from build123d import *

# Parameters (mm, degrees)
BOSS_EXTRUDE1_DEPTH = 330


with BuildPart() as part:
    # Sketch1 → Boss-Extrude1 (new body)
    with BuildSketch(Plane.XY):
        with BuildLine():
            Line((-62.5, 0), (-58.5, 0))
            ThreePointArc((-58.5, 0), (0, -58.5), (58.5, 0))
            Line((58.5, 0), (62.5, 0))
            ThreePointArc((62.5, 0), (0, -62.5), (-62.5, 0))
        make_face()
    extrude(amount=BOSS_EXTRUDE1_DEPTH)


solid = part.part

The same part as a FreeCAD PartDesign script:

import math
import FreeCAD as App
import Part
import Sketcher
from FreeCAD import Vector

doc = App.newDocument("Part")
body = doc.addObject("PartDesign::Body", "Body")

# Sketch on XY plane
sketch1 = body.newObject("Sketcher::SketchObject", "Sketch")
sketch1.AttachmentSupport = (doc.getObject("XY_Plane"), [""])
sketch1.MapMode = "FlatFace"
sketch1.addGeometry([
    Part.LineSegment(Vector(-58.5, 0, 0), Vector(-62.5, 0, 0)),
    Part.ArcOfCircle(Part.Circle(Vector(0, 0, 0), Vector(0, 0, 1), 62.5), math.radians(180), math.radians(360)),
    Part.LineSegment(Vector(62.5, 0, 0), Vector(58.5, 0, 0)),
    Part.ArcOfCircle(Part.Circle(Vector(0, 0, 0), Vector(0, 0, 1), 58.5), math.radians(180), math.radians(360)),
], False)
sketch1.addConstraint([
    Sketcher.Constraint("Coincident", 0, 2, 1, 1),
    Sketcher.Constraint("Coincident", 1, 2, 2, 1),
    Sketcher.Constraint("Coincident", 2, 2, 3, 2),
    Sketcher.Constraint("Coincident", 3, 1, 0, 1),
    Sketcher.Constraint("Horizontal", 0),
    Sketcher.Constraint("Horizontal", 2),
    Sketcher.Constraint("Coincident", 1, 3, -1, 1),
    Sketcher.Constraint("Coincident", 3, 3, -1, 1),
    Sketcher.Constraint("PointOnObject", 0, 2, -1),
    Sketcher.Constraint("PointOnObject", 1, 2, -1),
    Sketcher.Constraint("Radius", 1, 62.5),
    Sketcher.Constraint("Radius", 3, 58.5),
])
pad1 = body.newObject("PartDesign::Pad", "Pad")
pad1.Profile = sketch1
pad1.Length = 330

doc.recompute()
